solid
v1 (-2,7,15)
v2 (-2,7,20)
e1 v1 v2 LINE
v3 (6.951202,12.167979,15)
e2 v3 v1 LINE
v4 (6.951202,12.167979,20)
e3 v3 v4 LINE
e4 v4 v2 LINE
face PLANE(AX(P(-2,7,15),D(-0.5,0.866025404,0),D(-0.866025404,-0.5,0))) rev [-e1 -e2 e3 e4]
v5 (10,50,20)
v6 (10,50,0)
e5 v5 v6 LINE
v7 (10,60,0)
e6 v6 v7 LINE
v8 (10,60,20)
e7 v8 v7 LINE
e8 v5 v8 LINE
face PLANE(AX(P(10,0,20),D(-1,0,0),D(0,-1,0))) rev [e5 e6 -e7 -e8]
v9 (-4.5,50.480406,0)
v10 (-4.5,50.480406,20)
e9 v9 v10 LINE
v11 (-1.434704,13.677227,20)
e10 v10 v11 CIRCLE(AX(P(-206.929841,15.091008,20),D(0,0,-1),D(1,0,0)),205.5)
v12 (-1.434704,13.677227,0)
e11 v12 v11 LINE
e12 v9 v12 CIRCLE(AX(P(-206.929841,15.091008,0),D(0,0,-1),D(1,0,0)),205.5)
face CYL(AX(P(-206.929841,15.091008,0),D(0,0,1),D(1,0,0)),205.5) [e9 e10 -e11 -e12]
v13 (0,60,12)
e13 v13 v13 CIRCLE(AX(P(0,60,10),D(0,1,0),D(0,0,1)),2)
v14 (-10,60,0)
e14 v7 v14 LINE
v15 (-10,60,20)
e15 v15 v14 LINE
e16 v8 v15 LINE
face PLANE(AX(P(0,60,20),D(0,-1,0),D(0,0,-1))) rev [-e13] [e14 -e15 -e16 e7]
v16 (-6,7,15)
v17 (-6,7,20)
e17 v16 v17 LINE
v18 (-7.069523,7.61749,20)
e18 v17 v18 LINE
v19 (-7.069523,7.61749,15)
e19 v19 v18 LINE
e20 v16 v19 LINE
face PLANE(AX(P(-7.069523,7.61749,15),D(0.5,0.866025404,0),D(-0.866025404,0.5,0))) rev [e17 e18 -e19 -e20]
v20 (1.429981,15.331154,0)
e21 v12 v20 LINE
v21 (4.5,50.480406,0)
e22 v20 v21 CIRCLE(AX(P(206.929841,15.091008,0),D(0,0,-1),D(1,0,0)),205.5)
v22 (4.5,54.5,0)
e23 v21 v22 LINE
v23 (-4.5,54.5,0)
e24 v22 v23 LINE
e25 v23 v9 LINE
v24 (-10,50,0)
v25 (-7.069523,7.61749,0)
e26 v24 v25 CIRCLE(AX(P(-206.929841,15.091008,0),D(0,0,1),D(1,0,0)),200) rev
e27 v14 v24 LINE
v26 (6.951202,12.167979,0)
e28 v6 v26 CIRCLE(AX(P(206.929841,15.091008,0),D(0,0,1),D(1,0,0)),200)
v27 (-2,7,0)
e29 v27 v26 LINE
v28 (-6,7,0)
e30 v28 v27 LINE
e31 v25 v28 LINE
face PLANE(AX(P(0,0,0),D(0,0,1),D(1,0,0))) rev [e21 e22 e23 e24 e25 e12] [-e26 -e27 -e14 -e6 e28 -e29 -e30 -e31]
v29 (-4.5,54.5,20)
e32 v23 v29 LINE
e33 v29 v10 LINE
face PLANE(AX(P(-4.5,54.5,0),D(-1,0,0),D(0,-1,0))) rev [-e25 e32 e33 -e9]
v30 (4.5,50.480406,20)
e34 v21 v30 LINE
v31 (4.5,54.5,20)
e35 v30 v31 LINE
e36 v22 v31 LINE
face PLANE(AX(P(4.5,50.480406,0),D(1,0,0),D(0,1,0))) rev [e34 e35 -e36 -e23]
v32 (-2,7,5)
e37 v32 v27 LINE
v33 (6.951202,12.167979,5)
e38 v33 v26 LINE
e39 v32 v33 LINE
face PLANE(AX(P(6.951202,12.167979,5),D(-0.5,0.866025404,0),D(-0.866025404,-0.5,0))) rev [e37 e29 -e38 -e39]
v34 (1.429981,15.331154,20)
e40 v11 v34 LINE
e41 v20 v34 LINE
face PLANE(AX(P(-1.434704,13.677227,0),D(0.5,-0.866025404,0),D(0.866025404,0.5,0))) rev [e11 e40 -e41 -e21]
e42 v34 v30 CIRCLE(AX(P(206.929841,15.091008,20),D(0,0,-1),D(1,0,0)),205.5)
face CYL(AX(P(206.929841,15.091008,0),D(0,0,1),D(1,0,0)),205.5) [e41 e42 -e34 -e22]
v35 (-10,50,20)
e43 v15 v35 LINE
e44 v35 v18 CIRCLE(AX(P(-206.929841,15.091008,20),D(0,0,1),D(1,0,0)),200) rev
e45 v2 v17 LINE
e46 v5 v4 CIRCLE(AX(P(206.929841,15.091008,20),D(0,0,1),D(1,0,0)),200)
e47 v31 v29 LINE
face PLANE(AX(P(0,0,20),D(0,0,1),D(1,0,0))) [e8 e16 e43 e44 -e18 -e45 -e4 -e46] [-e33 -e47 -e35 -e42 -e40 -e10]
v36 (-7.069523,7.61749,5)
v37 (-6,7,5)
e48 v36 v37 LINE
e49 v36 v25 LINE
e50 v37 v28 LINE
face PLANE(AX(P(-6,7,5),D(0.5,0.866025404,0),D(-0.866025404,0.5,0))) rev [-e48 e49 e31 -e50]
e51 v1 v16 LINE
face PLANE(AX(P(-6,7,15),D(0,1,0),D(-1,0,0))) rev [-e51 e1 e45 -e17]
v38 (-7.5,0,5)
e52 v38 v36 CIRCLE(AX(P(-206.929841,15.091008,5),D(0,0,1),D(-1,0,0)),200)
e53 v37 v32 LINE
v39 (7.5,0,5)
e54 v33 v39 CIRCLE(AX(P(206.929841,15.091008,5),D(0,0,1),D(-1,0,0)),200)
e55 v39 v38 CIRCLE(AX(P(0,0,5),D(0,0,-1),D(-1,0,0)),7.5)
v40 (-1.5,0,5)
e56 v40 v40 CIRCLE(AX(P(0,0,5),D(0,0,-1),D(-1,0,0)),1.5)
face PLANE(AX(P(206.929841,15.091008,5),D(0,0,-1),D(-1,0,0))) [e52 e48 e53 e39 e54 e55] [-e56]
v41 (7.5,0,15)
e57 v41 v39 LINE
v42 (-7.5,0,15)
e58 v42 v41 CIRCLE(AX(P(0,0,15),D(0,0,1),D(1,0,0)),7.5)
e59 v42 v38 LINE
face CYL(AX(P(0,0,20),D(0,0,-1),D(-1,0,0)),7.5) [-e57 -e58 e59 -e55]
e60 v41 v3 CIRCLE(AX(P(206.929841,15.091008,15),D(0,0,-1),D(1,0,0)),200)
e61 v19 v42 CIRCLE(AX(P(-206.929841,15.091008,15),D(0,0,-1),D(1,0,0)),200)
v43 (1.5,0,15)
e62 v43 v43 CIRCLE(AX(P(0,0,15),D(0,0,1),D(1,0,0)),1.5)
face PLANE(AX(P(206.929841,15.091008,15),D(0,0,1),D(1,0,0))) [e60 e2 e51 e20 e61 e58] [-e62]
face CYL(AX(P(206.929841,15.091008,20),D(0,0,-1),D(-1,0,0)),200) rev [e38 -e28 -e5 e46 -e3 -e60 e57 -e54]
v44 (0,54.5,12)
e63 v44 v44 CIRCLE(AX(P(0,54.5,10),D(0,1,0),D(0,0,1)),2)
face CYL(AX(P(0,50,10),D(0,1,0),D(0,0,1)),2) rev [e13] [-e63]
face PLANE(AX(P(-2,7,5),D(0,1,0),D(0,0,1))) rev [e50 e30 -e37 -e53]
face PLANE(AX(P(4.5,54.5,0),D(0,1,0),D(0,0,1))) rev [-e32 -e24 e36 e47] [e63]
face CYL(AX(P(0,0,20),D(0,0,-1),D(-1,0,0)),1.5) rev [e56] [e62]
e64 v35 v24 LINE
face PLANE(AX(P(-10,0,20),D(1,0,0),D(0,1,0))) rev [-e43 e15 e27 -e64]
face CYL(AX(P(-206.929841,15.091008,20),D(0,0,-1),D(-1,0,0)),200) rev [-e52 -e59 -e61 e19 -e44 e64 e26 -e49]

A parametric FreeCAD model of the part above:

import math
import FreeCAD as App
import Part
import Sketcher
Q = App.Units.Quantity

doc = App.newDocument("Part")
body = doc.addObject("PartDesign::Body", "Body")

# Sketch on XY plane
sketch1 = body.newObject("Sketcher::SketchObject", "Sketch")
sketch1.AttachmentSupport = (doc.getObject("XY_Plane"), [""])
sketch1.MapMode = "FlatFace"
sketch1.addGeometry([
    Part.ArcOfCircle(Part.Circle(App.Vector(206.929841, 15.091008, 0), App.Vector(0, 0, 1), 200), math.radians(169.947821), math.radians(184.014812)),  # 0
    Part.LineSegment(App.Vector(10, 50, 0), App.Vector(10, 60, 0)),  # 1
    Part.LineSegment(App.Vector(10, 60, 0), App.Vector(-10, 60, 0)),  # 2
    Part.LineSegment(App.Vector(-10, 60, 0), App.Vector(-10, 50, 0)),  # 3
    Part.ArcOfCircle(Part.Circle(App.Vector(-206.929841, 15.091008, 0), App.Vector(0, 0, 1), 200), math.radians(-4.014812), math.radians(10.052179)),  # 4
    Part.ArcOfCircle(Part.Circle(App.Vector(-206.929724, 15.090999, 0), App.Vector(0, 0, 1), 199.999883), math.radians(-4.327368), math.radians(-4.014812)),  # 5
    Part.ArcOfCircle(Part.Circle(App.Vector(0, 0, 0), App.Vector(0, 0, 1), 7.5), math.radians(180), math.radians(360)),  # 6
    Part.ArcOfCircle(Part.Circle(App.Vector(206.929724, 15.090999, 0), App.Vector(0, 0, 1), 199.999883), math.radians(-175.985188), math.radians(-175.672632)),  # 7
    Part.Circle(App.Vector(0, 0, 0), App.Vector(0, 0, 1), 1.5),  # 8
], False)
sketch1.addConstraint([
    Sketcher.Constraint("Coincident", 0, 1, 1, 1),
    Sketcher.Constraint("Coincident", 1, 2, 2, 1),
    Sketcher.Constraint("Coincident", 2, 2, 3, 1),
    Sketcher.Constraint("Coincident", 3, 2, 4, 2),
    Sketcher.Constraint("Tangent", 4, 1, 5, 2),
    Sketcher.Constraint("Coincident", 5, 1, 6, 1),
    Sketcher.Constraint("Coincident", 6, 2, 7, 2),
    Sketcher.Constraint("Tangent", 7, 1, 0, 2),
    Sketcher.Constraint("Vertical", 1),
    Sketcher.Constraint("Horizontal", 2),
    Sketcher.Constraint("Vertical", 3),
    Sketcher.Constraint("Coincident", 6, 3, -1, 1),
    Sketcher.Constraint("Coincident", 8, 3, -1, 1),
    Sketcher.Constraint("Equal", 0, 4),
    Sketcher.Constraint("Equal", 5, 7),
    Sketcher.Constraint("Symmetric", 0, 3, 4, 3, -2),
    Sketcher.Constraint("PointOnObject", 5, 1, -1),
    Sketcher.Constraint("Horizontal", 0, 1, 3, 2),
    Sketcher.Constraint("Horizontal", 4, 1, 7, 1),
    Sketcher.Constraint("Diameter", 8, Q("3 mm")),
    Sketcher.Constraint("Radius", 0, Q("200 mm")),
    Sketcher.Constraint("Radius", 6, Q("7.5 mm")),
    Sketcher.Constraint("DistanceX", 2, 2, 2, 1, Q("20 mm")),
    Sketcher.Constraint("DistanceY", 1, 1, 1, 2, Q("10 mm")),
    Sketcher.Constraint("DistanceY", -1, 1, 1, 2, Q("60 mm")),
    Sketcher.Constraint("DistanceY", -1, 1, 5, 3, Q("15.090999 mm")),
    Sketcher.Constraint("DistanceX", 4, 1, 7, 1, Q("14.841289 mm")),
])
pad1 = body.newObject("PartDesign::Pad", "Pad")
pad1.Profile = sketch1
pad1.Length = 20

# Sketch on XY plane
sketch2 = body.newObject("Sketcher::SketchObject", "Sketch001")
sketch2.AttachmentSupport = (doc.getObject("XY_Plane"), [""])
sketch2.MapMode = "FlatFace"
sketch2.AttachmentOffset = App.Placement(App.Vector(0, 0, 15), App.Rotation())
sketch2.addGeometry([
    Part.LineSegment(App.Vector(-6, 7, 0), App.Vector(-7.069523, 7.61749, 0)),  # 0
    Part.ArcOfCircle(Part.Circle(App.Vector(-206.929839, 15.091008, 0), App.Vector(0, 0, 1), 199.999998), math.radians(-4.327368), math.radians(-2.141504)),  # 1
    Part.ArcOfCircle(Part.Circle(App.Vector(0, 0, 0), App.Vector(0, 0, 1), 7.5), math.radians(180), math.radians(360)),  # 2
    Part.ArcOfCircle(Part.Circle(App.Vector(206.929842, 15.091008, 0), App.Vector(0, 0, 1), 200.000001), math.radians(-179.162584), math.radians(-175.672632)),  # 3
    Part.LineSegment(App.Vector(6.951202, 12.167979, 0), App.Vector(-2, 7, 0)),  # 4
    Part.LineSegment(App.Vector(-2, 7, 0), App.Vector(-6, 7, 0)),  # 5
], False)
sketch2.addConstraint([
    Sketcher.Constraint("Coincident", 0, 2, 1, 2),
    Sketcher.Constraint("Coincident", 1, 1, 2, 1),
    Sketcher.Constraint("Coincident", 2, 2, 3, 2),
    Sketcher.Constraint("Coincident", 3, 1, 4, 1),
    Sketcher.Constraint("Coincident", 4, 2, 5, 1),
    Sketcher.Constraint("Coincident", 5, 2, 0, 1),
    Sketcher.Constraint("Horizontal", 5),
    Sketcher.Constraint("Coincident", 2, 3, -1, 1),
    Sketcher.Constraint("Symmetric", 1, 3, 3, 3, -2),
    Sketcher.Constraint("PointOnObject", 1, 1, -1),
    Sketcher.Constraint("PointOnObject", 2, 2, -1),
    Sketcher.Constraint("Radius", 3, Q("200.000001 mm")),
    Sketcher.Constraint("Radius", 2, Q("7.5 mm")),
    Sketcher.Constraint("DistanceX", 5, 2, 5, 1, Q("4 mm")),
    Sketcher.Constraint("Angle", 0, Q("150 deg")),
    Sketcher.Constraint("Angle", 4, Q("-150 deg")),
    Sketcher.Constraint("DistanceX", 4, 2, -1, 1, Q("2 mm")),
    Sketcher.Constraint("DistanceY", -1, 1, 4, 2, Q("7 mm")),
    Sketcher.Constraint("Distance", 0, Q("1.234979 mm")),
])
pocket1 = body.newObject("PartDesign::Pocket", "Pocket")
pocket1.Profile = sketch2
pocket1.Length = 5
pocket1.Reversed = True

# Sketch on XY plane
sketch3 = body.newObject("Sketcher::SketchObject", "Sketch002")
sketch3.AttachmentSupport = (doc.getObject("XY_Plane"), [""])
sketch3.MapMode = "FlatFace"
sketch3.addGeometry([
    Part.LineSegment(App.Vector(-2, 7, 0), App.Vector(6.951202, 12.167979, 0)),  # 0
    Part.ArcOfCircle(Part.Circle(App.Vector(206.929842, 15.091008, 0), App.Vector(0, 0, 1), 200.000001), math.radians(-179.162584), math.radians(-175.672632)),  # 1
    Part.ArcOfCircle(Part.Circle(App.Vector(0, 0, 0), App.Vector(0, 0, 1), 7.5), math.radians(180), math.radians(360)),  # 2
    Part.ArcOfCircle(Part.Circle(App.Vector(-206.929839, 15.091008, 0), App.Vector(0, 0, 1), 199.999998), math.radians(-4.327368), math.radians(-2.141504)),  # 3
    Part.LineSegment(App.Vector(-7.069523, 7.61749, 0), App.Vector(-6, 7, 0)),  # 4
    Part.LineSegment(App.Vector(-6, 7, 0), App.Vector(-2, 7, 0)),  # 5
], False)
sketch3.addConstraint([
    Sketcher.Constraint("Coincident", 0, 2, 1, 1),
    Sketcher.Constraint("Coincident", 1, 2, 2, 2),
    Sketcher.Constraint("Coincident", 2, 1, 3, 1),
    Sketcher.Constraint("Coincident", 3, 2, 4, 1),
    Sketcher.Constraint("Coincident", 4, 2, 5, 1),
    Sketcher.Constraint("Coincident", 5, 2, 0, 1),
    Sketcher.Constraint("Horizontal", 5),
    Sketcher.Constraint("Coincident", 2, 3, -1, 1),
    Sketcher.Constraint("Symmetric", 1, 3, 3, 3, -2),
    Sketcher.Constraint("PointOnObject", 1, 2, -1),
    Sketcher.Constraint("PointOnObject", 2, 1, -1),
    Sketcher.Constraint("Radius", 1, Q("200.000001 mm")),
    Sketcher.Constraint("Radius", 2, Q("7.5 mm")),
    Sketcher.Constraint("DistanceX", 5, 1, 5, 2, Q("4 mm")),
    Sketcher.Constraint("Angle", 0, Q("30 deg")),
    Sketcher.Constraint("Angle", 4, Q("-30 deg")),
    Sketcher.Constraint("DistanceX", 4, 2, -1, 1, Q("6 mm")),
    Sketcher.Constraint("DistanceY", -1, 1, 4, 2, Q("7 mm")),
    Sketcher.Constraint("Distance", 0, Q("10.335958 mm")),
])
pocket2 = body.newObject("PartDesign::Pocket", "Pocket001")
pocket2.Profile = sketch3
pocket2.Length = 5
pocket2.Reversed = True

# Sketch on XY plane
sketch4 = body.newObject("Sketcher::SketchObject", "Sketch003")
sketch4.AttachmentSupport = (doc.getObject("XY_Plane"), [""])
sketch4.MapMode = "FlatFace"
sketch4.AttachmentOffset = App.Placement(App.Vector(0, 0, 20), App.Rotation())
sketch4.addGeometry([
    Part.LineSegment(App.Vector(-1.434704, 13.677227, 0), App.Vector(1.429981, 15.331154, 0)),  # 0
    Part.ArcOfCircle(Part.Circle(App.Vector(206.929841, 15.091008, 0), App.Vector(0, 0, 1), 205.5), math.radians(170.083593), math.radians(179.933045)),  # 1
    Part.LineSegment(App.Vector(4.5, 50.480406, 0), App.Vector(4.5, 54.5, 0)),  # 2
    Part.LineSegment(App.Vector(4.5, 54.5, 0), App.Vector(-4.5, 54.5, 0)),  # 3
    Part.LineSegment(App.Vector(-4.5, 54.5, 0), App.Vector(-4.5, 50.480406, 0)),  # 4
    Part.ArcOfCircle(Part.Circle(App.Vector(-206.929841, 15.091008, 0), App.Vector(0, 0, 1), 205.5), math.radians(-0.394182), math.radians(9.916407)),  # 5
], False)
sketch4.addConstraint([
    Sketcher.Constraint("Coincident", 0, 2, 1, 2),
    Sketcher.Constraint("Coincident", 1, 1, 2, 1),
    Sketcher.Constraint("Coincident", 2, 2, 3, 1),
    Sketcher.Constraint("Coincident", 3, 2, 4, 1),
    Sketcher.Constraint("Coincident", 4, 2, 5, 2),
    Sketcher.Constraint("Coincident", 5, 1, 0, 1),
    Sketcher.Constraint("Vertical", 2),
    Sketcher.Constraint("Horizontal", 3),
    Sketcher.Constraint("Vertical", 4),
    Sketcher.Constraint("Equal", 1, 5),
    Sketcher.Constraint("Symmetric", 1, 3, 5, 3, -2),
    Sketcher.Constraint("Horizontal", 1, 1, 4, 2),
    Sketcher.Constraint("Radius", 1, Q("205.5 mm")),
    Sketcher.Constraint("DistanceX", 3, 2, 3, 1, Q("9 mm")),
    Sketcher.Constraint("Angle", 0, Q("30 deg")),
    Sketcher.Constraint("DistanceY", -1, 1, 2, 2, Q("54.5 mm")),
    Sketcher.Constraint("DistanceY", 2, 1, 2, 2, Q("4.019594 mm")),
    Sketcher.Constraint("DistanceX", -1, 1, 1, 3, Q("206.929841 mm")),
    Sketcher.Constraint("DistanceY", 5, 1, 4, 2, Q("36.803179 mm")),
])
pocket3 = body.newObject("PartDesign::Pocket", "Pocket002")
pocket3.Profile = sketch4
pocket3.Type = "ThroughAll"

# Sketch on XZ plane
sketch5 = body.newObject("Sketcher::SketchObject", "Sketch004")
sketch5.AttachmentSupport = (doc.getObject("XZ_Plane"), [""])
sketch5.MapMode = "FlatFace"
sketch5.AttachmentOffset = App.Placement(App.Vector(0, 0, -60), App.Rotation())
sketch5.addGeometry(Part.Circle(App.Vector(0, 10, 0), App.Vector(0, 0, 1), 2), False)
sketch5.addConstraint([
    Sketcher.Constraint("PointOnObject", 0, 3, -2),
    Sketcher.Constraint("Diameter", 0, Q("4 mm")),
    Sketcher.Constraint("DistanceY", -1, 1, 0, 3, Q("10 mm")),
])
pocket4 = body.newObject("PartDesign::Pocket", "Pocket003")
pocket4.Profile = sketch5
pocket4.Length = 10
pocket4.Reversed = True

doc.recompute()
